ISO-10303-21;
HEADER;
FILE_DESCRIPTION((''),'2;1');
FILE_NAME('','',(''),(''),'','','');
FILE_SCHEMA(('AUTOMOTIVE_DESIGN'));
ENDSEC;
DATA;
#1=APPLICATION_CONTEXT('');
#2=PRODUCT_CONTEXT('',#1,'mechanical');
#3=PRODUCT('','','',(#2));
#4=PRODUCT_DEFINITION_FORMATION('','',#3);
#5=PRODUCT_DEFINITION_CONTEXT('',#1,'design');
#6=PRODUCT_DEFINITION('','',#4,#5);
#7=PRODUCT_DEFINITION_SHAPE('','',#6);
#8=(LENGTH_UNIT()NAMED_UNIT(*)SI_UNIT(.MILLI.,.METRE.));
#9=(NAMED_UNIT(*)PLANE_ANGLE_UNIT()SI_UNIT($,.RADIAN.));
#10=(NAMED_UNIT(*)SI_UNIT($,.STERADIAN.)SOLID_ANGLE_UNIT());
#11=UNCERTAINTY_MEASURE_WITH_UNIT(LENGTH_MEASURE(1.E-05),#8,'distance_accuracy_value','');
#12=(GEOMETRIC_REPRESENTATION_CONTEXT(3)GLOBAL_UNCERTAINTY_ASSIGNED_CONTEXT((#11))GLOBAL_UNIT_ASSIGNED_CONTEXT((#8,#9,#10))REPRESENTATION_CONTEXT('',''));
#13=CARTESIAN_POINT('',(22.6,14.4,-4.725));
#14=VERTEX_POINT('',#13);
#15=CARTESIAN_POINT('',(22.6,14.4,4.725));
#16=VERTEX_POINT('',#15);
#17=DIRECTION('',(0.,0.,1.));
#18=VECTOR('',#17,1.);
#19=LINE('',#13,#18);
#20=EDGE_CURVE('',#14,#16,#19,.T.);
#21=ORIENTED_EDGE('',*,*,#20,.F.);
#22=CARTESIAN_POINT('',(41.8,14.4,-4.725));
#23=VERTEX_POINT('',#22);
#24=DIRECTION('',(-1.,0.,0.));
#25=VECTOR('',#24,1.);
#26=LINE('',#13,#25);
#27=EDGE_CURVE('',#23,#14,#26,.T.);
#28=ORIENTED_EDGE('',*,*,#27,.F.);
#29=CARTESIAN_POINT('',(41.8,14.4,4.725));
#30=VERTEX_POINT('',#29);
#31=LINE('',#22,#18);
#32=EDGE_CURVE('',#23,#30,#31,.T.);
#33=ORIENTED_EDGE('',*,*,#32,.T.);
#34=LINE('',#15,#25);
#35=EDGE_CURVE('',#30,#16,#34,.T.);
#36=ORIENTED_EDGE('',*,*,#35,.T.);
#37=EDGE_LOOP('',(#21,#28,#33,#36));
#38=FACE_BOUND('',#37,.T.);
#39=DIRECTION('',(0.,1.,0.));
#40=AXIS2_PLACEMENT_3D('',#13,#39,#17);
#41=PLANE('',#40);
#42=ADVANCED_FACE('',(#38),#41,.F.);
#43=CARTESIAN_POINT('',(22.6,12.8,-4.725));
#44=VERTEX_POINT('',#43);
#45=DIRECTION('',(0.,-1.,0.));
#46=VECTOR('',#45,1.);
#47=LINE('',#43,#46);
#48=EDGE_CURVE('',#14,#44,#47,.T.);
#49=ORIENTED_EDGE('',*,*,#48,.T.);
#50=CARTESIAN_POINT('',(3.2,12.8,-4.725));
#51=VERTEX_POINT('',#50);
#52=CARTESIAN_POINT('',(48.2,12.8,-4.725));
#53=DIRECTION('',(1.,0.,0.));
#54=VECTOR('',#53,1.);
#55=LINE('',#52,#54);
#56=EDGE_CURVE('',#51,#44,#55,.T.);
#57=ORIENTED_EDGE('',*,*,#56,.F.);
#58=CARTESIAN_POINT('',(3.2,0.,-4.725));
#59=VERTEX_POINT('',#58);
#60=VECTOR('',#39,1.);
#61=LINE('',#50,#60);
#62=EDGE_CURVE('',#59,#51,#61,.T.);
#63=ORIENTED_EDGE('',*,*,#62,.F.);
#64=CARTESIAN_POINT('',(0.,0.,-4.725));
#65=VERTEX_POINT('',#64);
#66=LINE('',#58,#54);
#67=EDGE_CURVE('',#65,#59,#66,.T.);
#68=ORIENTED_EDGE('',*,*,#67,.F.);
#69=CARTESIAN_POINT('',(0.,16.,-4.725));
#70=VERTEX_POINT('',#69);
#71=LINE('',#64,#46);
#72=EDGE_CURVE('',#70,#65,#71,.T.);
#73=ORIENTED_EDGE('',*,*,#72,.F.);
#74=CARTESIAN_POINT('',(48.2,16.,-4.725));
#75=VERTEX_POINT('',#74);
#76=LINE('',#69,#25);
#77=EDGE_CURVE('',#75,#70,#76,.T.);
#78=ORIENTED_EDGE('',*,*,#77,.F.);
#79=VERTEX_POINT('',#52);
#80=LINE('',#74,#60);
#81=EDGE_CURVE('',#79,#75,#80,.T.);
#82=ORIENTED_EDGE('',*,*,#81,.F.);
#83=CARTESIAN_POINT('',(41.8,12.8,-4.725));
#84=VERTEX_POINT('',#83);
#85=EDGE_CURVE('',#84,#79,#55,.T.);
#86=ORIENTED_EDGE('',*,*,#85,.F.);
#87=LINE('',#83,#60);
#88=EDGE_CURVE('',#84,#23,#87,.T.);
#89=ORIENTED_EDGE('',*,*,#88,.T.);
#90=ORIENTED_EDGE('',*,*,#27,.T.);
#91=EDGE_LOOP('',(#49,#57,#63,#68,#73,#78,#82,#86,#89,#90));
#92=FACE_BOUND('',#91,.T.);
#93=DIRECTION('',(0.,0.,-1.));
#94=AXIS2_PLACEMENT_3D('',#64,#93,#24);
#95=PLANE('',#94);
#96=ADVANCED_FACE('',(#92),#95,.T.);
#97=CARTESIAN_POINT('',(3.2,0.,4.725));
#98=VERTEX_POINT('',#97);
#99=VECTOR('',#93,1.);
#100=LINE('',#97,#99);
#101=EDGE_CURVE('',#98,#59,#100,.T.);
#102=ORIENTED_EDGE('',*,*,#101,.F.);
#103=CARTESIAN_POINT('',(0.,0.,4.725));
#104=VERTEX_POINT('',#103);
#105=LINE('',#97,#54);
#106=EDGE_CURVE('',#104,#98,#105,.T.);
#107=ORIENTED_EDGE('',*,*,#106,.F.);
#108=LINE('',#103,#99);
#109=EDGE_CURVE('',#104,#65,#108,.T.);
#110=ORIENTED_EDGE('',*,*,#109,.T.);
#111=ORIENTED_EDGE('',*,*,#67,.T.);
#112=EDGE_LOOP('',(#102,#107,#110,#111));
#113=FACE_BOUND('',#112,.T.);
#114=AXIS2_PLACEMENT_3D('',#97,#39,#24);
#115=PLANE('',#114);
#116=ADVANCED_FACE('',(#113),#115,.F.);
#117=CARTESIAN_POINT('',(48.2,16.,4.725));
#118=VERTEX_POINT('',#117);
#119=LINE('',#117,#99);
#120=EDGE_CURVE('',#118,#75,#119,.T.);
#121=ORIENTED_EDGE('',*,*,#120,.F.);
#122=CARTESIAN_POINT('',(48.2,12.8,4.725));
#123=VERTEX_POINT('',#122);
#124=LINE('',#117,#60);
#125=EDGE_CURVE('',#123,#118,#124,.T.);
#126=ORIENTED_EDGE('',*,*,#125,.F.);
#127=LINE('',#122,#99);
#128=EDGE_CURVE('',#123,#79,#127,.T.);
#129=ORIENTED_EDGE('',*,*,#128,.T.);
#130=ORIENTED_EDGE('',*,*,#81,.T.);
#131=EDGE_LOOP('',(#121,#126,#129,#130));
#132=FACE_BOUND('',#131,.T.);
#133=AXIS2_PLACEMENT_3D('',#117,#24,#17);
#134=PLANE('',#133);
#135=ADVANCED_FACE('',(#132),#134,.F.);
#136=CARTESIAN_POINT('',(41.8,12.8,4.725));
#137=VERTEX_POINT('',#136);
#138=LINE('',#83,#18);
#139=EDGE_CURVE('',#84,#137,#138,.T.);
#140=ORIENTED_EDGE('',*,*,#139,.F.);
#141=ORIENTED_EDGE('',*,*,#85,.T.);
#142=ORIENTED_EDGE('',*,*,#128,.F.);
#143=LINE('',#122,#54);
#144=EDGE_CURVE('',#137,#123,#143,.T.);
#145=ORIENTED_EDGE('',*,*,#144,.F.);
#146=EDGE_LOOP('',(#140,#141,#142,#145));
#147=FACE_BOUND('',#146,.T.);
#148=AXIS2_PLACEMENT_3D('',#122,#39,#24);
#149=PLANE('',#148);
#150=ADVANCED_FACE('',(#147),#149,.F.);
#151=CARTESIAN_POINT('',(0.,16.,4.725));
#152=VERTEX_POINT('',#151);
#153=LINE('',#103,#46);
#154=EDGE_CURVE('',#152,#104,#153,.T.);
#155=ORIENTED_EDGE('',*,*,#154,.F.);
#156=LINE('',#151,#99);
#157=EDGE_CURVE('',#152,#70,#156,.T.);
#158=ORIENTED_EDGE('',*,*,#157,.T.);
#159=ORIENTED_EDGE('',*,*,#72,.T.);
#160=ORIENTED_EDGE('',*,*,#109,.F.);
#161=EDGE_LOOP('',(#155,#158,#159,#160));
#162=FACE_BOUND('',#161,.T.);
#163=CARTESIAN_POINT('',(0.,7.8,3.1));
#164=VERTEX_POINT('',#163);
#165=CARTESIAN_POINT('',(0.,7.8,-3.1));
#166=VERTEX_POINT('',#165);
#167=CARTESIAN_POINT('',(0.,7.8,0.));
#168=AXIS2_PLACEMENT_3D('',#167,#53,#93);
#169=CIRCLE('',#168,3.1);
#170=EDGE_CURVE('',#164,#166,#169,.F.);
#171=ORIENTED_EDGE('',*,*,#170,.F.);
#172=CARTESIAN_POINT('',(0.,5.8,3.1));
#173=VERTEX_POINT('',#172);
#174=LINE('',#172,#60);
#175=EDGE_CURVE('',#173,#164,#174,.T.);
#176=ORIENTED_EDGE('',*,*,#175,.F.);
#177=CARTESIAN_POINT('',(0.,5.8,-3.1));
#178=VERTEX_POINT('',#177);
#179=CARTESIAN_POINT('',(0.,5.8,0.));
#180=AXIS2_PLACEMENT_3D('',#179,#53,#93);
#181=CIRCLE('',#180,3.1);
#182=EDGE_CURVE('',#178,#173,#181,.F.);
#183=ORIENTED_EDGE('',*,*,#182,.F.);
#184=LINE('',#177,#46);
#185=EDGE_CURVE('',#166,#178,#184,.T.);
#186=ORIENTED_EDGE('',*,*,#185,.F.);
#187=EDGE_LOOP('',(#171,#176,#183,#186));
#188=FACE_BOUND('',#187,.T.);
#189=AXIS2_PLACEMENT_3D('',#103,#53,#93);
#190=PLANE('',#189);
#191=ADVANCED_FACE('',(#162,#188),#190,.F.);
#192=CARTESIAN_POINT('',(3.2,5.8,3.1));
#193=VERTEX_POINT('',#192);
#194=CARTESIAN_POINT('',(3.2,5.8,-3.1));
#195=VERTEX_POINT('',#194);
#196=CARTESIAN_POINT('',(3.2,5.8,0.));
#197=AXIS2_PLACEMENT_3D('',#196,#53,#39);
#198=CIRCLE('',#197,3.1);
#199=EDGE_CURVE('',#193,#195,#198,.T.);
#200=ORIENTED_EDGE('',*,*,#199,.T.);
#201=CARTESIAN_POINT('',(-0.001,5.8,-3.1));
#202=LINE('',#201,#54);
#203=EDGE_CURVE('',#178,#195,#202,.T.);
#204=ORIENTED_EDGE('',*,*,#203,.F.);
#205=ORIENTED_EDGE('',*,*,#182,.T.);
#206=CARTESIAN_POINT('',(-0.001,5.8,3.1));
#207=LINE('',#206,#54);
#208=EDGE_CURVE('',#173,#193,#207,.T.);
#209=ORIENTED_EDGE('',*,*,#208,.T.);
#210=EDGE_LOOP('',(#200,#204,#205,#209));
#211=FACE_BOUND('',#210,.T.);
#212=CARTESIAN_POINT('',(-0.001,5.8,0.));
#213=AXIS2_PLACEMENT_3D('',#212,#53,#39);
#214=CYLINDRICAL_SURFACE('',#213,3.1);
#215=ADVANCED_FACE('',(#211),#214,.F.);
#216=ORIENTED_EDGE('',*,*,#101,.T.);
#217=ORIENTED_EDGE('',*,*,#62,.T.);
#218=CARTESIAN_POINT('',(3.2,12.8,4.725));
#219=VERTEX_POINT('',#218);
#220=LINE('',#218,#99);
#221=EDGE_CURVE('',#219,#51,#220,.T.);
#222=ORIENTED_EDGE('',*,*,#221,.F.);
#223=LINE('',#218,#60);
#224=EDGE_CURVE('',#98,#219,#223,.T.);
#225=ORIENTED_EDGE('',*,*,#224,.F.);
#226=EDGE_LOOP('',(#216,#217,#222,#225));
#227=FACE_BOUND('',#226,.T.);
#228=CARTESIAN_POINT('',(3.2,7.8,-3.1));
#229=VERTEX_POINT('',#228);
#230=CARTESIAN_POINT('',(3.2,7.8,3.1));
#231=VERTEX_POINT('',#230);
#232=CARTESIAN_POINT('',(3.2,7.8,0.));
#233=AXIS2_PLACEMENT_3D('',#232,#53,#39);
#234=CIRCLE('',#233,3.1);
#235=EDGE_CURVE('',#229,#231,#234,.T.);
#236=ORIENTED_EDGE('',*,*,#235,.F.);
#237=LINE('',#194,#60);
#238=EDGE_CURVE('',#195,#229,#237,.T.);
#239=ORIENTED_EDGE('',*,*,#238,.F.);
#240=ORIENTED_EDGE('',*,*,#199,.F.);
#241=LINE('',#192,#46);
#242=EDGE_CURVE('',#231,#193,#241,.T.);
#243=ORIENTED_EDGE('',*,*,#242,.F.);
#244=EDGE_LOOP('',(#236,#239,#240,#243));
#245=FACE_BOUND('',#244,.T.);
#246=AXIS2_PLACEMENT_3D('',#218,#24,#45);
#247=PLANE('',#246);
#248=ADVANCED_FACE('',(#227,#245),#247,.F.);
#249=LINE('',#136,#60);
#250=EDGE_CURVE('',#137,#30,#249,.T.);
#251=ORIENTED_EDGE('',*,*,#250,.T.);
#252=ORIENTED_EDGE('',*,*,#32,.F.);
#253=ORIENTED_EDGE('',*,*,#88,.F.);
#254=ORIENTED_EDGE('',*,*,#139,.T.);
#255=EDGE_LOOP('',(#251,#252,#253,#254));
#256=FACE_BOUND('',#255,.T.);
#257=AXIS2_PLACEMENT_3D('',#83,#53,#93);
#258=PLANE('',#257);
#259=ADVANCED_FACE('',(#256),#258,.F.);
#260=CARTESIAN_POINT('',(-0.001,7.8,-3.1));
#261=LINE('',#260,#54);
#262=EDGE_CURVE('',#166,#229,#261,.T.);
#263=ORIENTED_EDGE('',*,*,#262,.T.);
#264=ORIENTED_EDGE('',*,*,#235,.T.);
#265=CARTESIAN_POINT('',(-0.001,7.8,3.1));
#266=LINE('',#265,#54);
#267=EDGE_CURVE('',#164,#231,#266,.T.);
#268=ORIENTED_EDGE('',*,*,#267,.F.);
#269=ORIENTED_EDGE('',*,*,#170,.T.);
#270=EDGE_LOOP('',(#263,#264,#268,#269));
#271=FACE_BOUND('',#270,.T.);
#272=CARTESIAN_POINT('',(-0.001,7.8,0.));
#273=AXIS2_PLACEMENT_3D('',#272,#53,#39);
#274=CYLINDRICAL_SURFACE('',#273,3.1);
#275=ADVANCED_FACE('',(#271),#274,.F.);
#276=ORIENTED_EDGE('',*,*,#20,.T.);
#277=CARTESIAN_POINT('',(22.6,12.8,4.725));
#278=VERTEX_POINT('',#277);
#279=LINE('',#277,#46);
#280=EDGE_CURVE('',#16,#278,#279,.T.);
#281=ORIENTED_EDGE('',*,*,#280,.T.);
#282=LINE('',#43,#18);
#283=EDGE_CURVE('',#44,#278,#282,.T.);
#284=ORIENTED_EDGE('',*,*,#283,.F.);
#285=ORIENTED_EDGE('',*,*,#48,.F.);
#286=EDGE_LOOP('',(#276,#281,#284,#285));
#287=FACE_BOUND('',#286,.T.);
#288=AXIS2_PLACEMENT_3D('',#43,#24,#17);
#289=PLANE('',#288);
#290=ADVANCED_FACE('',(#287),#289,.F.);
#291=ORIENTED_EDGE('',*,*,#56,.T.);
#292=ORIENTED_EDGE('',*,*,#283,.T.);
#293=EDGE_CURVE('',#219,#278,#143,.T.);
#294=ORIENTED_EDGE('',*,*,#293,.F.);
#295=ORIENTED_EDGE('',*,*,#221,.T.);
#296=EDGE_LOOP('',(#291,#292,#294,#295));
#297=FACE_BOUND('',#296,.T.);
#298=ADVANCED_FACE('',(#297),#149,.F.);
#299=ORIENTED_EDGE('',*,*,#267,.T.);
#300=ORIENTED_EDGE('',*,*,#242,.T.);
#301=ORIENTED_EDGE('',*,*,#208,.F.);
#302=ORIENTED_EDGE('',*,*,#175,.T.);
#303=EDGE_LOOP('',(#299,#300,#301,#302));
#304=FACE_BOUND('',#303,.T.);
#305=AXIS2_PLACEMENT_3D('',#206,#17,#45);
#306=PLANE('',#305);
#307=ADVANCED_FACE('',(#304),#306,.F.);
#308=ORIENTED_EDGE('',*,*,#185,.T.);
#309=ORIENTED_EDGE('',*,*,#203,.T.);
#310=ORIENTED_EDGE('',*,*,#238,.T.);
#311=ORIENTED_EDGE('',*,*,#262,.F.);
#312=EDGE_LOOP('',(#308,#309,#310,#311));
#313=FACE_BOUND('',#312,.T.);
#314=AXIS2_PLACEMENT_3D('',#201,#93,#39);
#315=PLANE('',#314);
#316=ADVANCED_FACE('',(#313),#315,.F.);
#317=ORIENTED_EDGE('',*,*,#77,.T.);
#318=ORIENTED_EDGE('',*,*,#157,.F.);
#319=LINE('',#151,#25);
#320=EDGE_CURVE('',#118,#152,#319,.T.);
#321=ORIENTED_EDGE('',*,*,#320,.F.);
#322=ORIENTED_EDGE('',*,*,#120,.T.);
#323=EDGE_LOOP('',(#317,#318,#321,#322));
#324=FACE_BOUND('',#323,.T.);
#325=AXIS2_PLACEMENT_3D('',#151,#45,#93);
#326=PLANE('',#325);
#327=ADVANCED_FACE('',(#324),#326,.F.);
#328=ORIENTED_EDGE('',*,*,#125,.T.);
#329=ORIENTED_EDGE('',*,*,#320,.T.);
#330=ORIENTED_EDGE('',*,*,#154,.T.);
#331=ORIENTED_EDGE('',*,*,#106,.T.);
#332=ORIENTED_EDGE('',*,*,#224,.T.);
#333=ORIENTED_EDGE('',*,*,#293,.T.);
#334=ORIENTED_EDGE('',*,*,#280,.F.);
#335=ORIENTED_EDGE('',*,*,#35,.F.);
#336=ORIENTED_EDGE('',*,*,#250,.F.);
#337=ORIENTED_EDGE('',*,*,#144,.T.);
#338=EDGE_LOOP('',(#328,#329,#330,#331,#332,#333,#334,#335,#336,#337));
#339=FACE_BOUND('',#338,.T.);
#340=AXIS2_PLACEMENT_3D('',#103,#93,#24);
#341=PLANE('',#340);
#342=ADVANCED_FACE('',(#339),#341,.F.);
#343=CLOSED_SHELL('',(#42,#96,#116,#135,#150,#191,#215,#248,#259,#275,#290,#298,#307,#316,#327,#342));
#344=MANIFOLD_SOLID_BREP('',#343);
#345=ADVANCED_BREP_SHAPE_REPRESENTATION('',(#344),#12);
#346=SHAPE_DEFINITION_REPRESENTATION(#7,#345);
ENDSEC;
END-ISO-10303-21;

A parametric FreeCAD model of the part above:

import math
import FreeCAD as App
import Part
import Sketcher
Q = App.Units.Quantity

doc = App.newDocument("Part")
body = doc.addObject("PartDesign::Body", "Body")

# Sketch on XY plane
sketch1 = doc.addObject("Sketcher::SketchObject", "Sketch")
body.addObject(sketch1)
sketch1.AttachmentSupport = (doc.XY_Plane, [""])
sketch1.MapMode = "FlatFace"
sketch1.addGeometry(Part.LineSegment(App.Vector(0, 16, 0), App.Vector(0, 0, 0)), False)
sketch1.addGeometry(Part.LineSegment(App.Vector(0, 0, 0), App.Vector(3.2, 0, 0)), False)
sketch1.addGeometry(Part.LineSegment(App.Vector(3.2, 0, 0), App.Vector(3.2, 12.8, 0)), False)
sketch1.addGeometry(Part.LineSegment(App.Vector(3.2, 12.8, 0), App.Vector(48.2, 12.8, 0)), False)
sketch1.addGeometry(Part.LineSegment(App.Vector(48.2, 12.8, 0), App.Vector(48.2, 16, 0)), False)
sketch1.addGeometry(Part.LineSegment(App.Vector(48.2, 16, 0), App.Vector(0, 16, 0)), False)
sketch1.addConstraint(Sketcher.Constraint("Coincident", 0, 2, 1, 1))
sketch1.addConstraint(Sketcher.Constraint("Coincident", 1, 2, 2, 1))
sketch1.addConstraint(Sketcher.Constraint("Coincident", 2, 2, 3, 1))
sketch1.addConstraint(Sketcher.Constraint("Coincident", 3, 2, 4, 1))
sketch1.addConstraint(Sketcher.Constraint("Coincident", 4, 2, 5, 1))
sketch1.addConstraint(Sketcher.Constraint("Coincident", 5, 2, 0, 1))
sketch1.addConstraint(Sketcher.Constraint("Vertical", 0))
sketch1.addConstraint(Sketcher.Constraint("Horizontal", 1))
sketch1.addConstraint(Sketcher.Constraint("Vertical", 2))
sketch1.addConstraint(Sketcher.Constraint("Horizontal", 3))
sketch1.addConstraint(Sketcher.Constraint("Vertical", 4))
sketch1.addConstraint(Sketcher.Constraint("Horizontal", 5))
sketch1.addConstraint(Sketcher.Constraint("Coincident", 0, 2, -1, 1))
sketch1.addConstraint(Sketcher.Constraint("Equal", 1, 4))
sketch1.addConstraint(Sketcher.Constraint("DistanceX", 3, 1, 3, 2, Q("45 mm")))
sketch1.addConstraint(Sketcher.Constraint("DistanceY", 0, 2, 0, 1, Q("16 mm")))
sketch1.addConstraint(Sketcher.Constraint("DistanceX", 1, 1, 1, 2, Q("3.2 mm")))
pad1 = doc.addObject("PartDesign::Pad", "Pad")
body.addObject(pad1)
pad1.Profile = sketch1
pad1.Length = 9.45
pad1.Midplane = True

# Sketch on XY plane
sketch2 = doc.addObject("Sketcher::SketchObject", "Sketch001")
body.addObject(sketch2)
sketch2.AttachmentSupport = (doc.XY_Plane, [""])
sketch2.MapMode = "FlatFace"
sketch2.addGeometry(Part.LineSegment(App.Vector(22.6, 14.4, 0), App.Vector(22.6, 12.8, 0)), False)
sketch2.addGeometry(Part.LineSegment(App.Vector(22.6, 12.8, 0), App.Vector(41.8, 12.8, 0)), False)
sketch2.addGeometry(Part.LineSegment(App.Vector(41.8, 12.8, 0), App.Vector(41.8, 14.4, 0)), False)
sketch2.addGeometry(Part.LineSegment(App.Vector(41.8, 14.4, 0), App.Vector(22.6, 14.4, 0)), False)
sketch2.addConstraint(Sketcher.Constraint("Coincident", 0, 2, 1, 1))
sketch2.addConstraint(Sketcher.Constraint("Coincident", 1, 2, 2, 1))
sketch2.addConstraint(Sketcher.Constraint("Coincident", 2, 2, 3, 1))
sketch2.addConstraint(Sketcher.Constraint("Coincident", 3, 2, 0, 1))
sketch2.addConstraint(Sketcher.Constraint("Vertical", 0))
sketch2.addConstraint(Sketcher.Constraint("Horizontal", 1))
sketch2.addConstraint(Sketcher.Constraint("Vertical", 2))
sketch2.addConstraint(Sketcher.Constraint("Horizontal", 3))
sketch2.addConstraint(Sketcher.Constraint("DistanceX", 1, 1, 1, 2, Q("19.2 mm")))
sketch2.addConstraint(Sketcher.Constraint("DistanceY", 0, 2, 0, 1, Q("1.6 mm")))
sketch2.addConstraint(Sketcher.Constraint("DistanceX", -1, 1, 0, 2, Q("22.6 mm")))
sketch2.addConstraint(Sketcher.Constraint("DistanceY", -1, 1, 0, 2, Q("12.8 mm")))
pocket1 = doc.addObject("PartDesign::Pocket", "Pocket")
body.addObject(pocket1)
pocket1.Profile = sketch2
pocket1.Length = 9.45
pocket1.Midplane = True

# Sketch on YZ plane
sketch3 = doc.addObject("Sketcher::SketchObject", "Sketch002")
body.addObject(sketch3)
sketch3.AttachmentSupport = (doc.YZ_Plane, [""])
sketch3.MapMode = "FlatFace"
sketch3.AttachmentOffset = App.Placement(App.Vector(0, 0, 3.2), App.Rotation())
sketch3.addGeometry(Part.LineSegment(App.Vector(7.8, 3.1, 0), App.Vector(5.8, 3.1, 0)), False)
sketch3.addGeometry(Part.ArcOfCircle(Part.Circle(App.Vector(5.8, 0, 0), App.Vector(0, 0, 1), 3.1), math.radians(90), math.radians(270)), False)
sketch3.addGeometry(Part.LineSegment(App.Vector(5.8, -3.1, 0), App.Vector(7.8, -3.1, 0)), False)
sketch3.addGeometry(Part.ArcOfCircle(Part.Circle(App.Vector(7.8, 0, 0), App.Vector(0, 0, 1), 3.1), math.radians(-90), math.radians(90)), False)
sketch3.addConstraint(Sketcher.Constraint("Tangent", 0, 2, 1, 1))
sketch3.addConstraint(Sketcher.Constraint("Tangent", 1, 2, 2, 1))
sketch3.addConstraint(Sketcher.Constraint("Tangent", 2, 2, 3, 1))
sketch3.addConstraint(Sketcher.Constraint("Tangent", 3, 2, 0, 1))
sketch3.addConstraint(Sketcher.Constraint("Horizontal", 0))
sketch3.addConstraint(Sketcher.Constraint("Horizontal", 2))
sketch3.addConstraint(Sketcher.Constraint("PointOnObject", 1, 3, -1))
sketch3.addConstraint(Sketcher.Constraint("Radius", 1, Q("3.1 mm")))
sketch3.addConstraint(Sketcher.Constraint("DistanceX", 0, 2, 0, 1, Q("2 mm")))
sketch3.addConstraint(Sketcher.Constraint("DistanceX", -1, 1, 1, 3, Q("5.8 mm")))
pocket2 = doc.addObject("PartDesign::Pocket", "Pocket001")
body.addObject(pocket2)
pocket2.Profile = sketch3
pocket2.Type = "UpToFirst"

doc.recompute()
